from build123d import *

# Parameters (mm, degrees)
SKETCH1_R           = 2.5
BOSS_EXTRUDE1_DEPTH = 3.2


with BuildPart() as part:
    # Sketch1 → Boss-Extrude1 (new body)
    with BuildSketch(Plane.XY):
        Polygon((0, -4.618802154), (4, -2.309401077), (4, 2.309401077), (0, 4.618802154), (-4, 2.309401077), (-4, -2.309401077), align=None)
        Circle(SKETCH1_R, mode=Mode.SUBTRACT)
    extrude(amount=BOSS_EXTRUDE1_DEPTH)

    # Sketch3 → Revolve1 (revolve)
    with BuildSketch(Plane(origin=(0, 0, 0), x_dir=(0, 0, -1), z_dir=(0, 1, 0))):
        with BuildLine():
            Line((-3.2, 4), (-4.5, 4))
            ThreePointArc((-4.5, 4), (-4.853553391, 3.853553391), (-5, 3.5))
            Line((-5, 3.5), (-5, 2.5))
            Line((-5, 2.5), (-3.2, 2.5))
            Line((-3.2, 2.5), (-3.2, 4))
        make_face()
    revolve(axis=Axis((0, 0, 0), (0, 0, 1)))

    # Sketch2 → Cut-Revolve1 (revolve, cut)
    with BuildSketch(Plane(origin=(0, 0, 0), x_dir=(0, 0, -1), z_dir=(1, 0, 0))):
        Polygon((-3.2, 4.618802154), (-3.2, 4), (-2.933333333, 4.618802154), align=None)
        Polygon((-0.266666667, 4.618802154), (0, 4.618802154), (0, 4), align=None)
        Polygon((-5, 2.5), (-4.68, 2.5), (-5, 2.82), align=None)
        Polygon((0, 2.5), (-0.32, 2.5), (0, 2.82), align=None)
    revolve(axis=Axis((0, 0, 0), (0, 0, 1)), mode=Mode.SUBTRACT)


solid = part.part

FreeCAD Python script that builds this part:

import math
import FreeCAD as App
import Part
import Sketcher
from FreeCAD import Vector
Q = App.Units.Quantity

doc = App.newDocument("Part")
body = doc.addObject("PartDesign::Body", "Body")

sketch1 = body.newObject("Sketcher::SketchObject", "Sketch")
sketch1.AttachmentSupport = (doc.getObject("XY_Plane"), [""])
sketch1.MapMode = "FlatFace"
sketch1.addGeometry([
    Part.LineSegment(Vector(0, -4.618802, 0), Vector(4, -2.309401, 0)),
    Part.LineSegment(Vector(4, -2.309401, 0), Vector(4, 2.309401, 0)),
    Part.LineSegment(Vector(4, 2.309401, 0), Vector(0, 4.618802, 0)),
    Part.LineSegment(Vector(0, 4.618802, 0), Vector(-4, 2.309401, 0)),
    Part.LineSegment(Vector(-4, 2.309401, 0), Vector(-4, -2.309401, 0)),
    Part.LineSegment(Vector(-4, -2.309401, 0), Vector(0, -4.618802, 0)),
    Part.Circle(Vector(0, 0, 0), Vector(0, 0, 1), 2.5),
], False)
sketch1.addConstraint([
    Sketcher.Constraint("Coincident", 0, 2, 1, 1),
    Sketcher.Constraint("Coincident", 1, 2, 2, 1),
    Sketcher.Constraint("Coincident", 2, 2, 3, 1),
    Sketcher.Constraint("Coincident", 3, 2, 4, 1),
    Sketcher.Constraint("Coincident", 4, 2, 5, 1),
    Sketcher.Constraint("Coincident", 5, 2, 0, 1),
    Sketcher.Constraint("Vertical", 1),
    Sketcher.Constraint("Vertical", 4),
    Sketcher.Constraint("Coincident", 6, 3, -1, 1),
    Sketcher.Constraint("Symmetric", 0, 2, 3, 2, -1, 1),
    Sketcher.Constraint("Symmetric", 2, 2, 5, 2, -1, 1),
    Sketcher.Constraint("PointOnObject", 2, 2, -2),
    Sketcher.Constraint("Parallel", 2, 5),
    Sketcher.Constraint("Horizontal", 1, 2, 3, 2),
    Sketcher.Constraint("Diameter", 6, 5.0),
    Sketcher.Constraint("Angle", 0, Q("30 deg")),
    Sketcher.Constraint("DistanceX", -1, 1, 0, 2, 4.0),
    Sketcher.Constraint("DistanceY", 0, 2, -1, 1, 2.309401),
])
pad1 = body.newObject("PartDesign::Pad", "Pad")
pad1.Profile = sketch1
pad1.Length = 3.2

sketch2 = body.newObject("Sketcher::SketchObject", "Sketch001")
sketch2.AttachmentSupport = (doc.getObject("XZ_Plane"), [""])
sketch2.MapMode = "FlatFace"
sketch2.addGeometry([
    Part.LineSegment(Vector(-4, 3.2, 0), Vector(-4, 4.5, 0)),
    Part.ArcOfCircle(Part.Circle(Vector(-3.5, 4.5, 0), Vector(0, 0, 1), 0.5), math.radians(90), math.radians(180)),
    Part.LineSegment(Vector(-3.5, 5, 0), Vector(-2.5, 5, 0)),
    Part.LineSegment(Vector(-2.5, 5, 0), Vector(-2.5, 3.2, 0)),
    Part.LineSegment(Vector(-2.5, 3.2, 0), Vector(-4, 3.2, 0)),
], False)
sketch2.addConstraint([
    Sketcher.Constraint("Tangent", 0, 2, 1, 2),
    Sketcher.Constraint("Tangent", 1, 1, 2, 1),
    Sketcher.Constraint("Coincident", 2, 2, 3, 1),
    Sketcher.Constraint("Coincident", 3, 2, 4, 1),
    Sketcher.Constraint("Coincident", 4, 2, 0, 1),
    Sketcher.Constraint("Vertical", 0),
    Sketcher.Constraint("Horizontal", 2),
    Sketcher.Constraint("Vertical", 3),
    Sketcher.Constraint("Horizontal", 4),
    Sketcher.Constraint("Radius", 1, 0.5),
    Sketcher.Constraint("DistanceX", 2, 1, 2, 2, 1.0),
    Sketcher.Constraint("DistanceY", 0, 1, 0, 2, 1.3),
    Sketcher.Constraint("DistanceX", 0, 2, -1, 1, 4.0),
    Sketcher.Constraint("DistanceY", -1, 1, 1, 1, 5.0),
])
revolution = body.newObject("PartDesign::Revolution", "Revolution")
revolution.Profile = sketch2
revolution.ReferenceAxis = (sketch2, ["V_Axis"])
revolution.Angle = 360

sketch3 = body.newObject("Sketcher::SketchObject", "Sketch002")
sketch3.AttachmentSupport = (doc.getObject("YZ_Plane"), [""])
sketch3.MapMode = "FlatFace"
sketch3.addGeometry([
    Part.LineSegment(Vector(4.618802, 3.2, 0), Vector(4, 3.2, 0)),
    Part.LineSegment(Vector(4, 3.2, 0), Vector(4.618802, 2.933333, 0)),
    Part.LineSegment(Vector(4.618802, 2.933333, 0), Vector(4.618802, 3.2, 0)),
    Part.LineSegment(Vector(4.618802, 0, 0), Vector(4.618802, 0.266667, 0)),
    Part.LineSegment(Vector(4.618802, 0.266667, 0), Vector(4, 0, 0)),
    Part.LineSegment(Vector(4, 0, 0), Vector(4.618802, 0, 0)),
    Part.LineSegment(Vector(2.5, 5, 0), Vector(2.5, 4.68, 0)),
    Part.LineSegment(Vector(2.5, 4.68, 0), Vector(2.82, 5, 0)),
    Part.LineSegment(Vector(2.82, 5, 0), Vector(2.5, 5, 0)),
    Part.LineSegment(Vector(2.5, 0.32, 0), Vector(2.5, 0, 0)),
    Part.LineSegment(Vector(2.5, 0, 0), Vector(2.82, 0, 0)),
    Part.LineSegment(Vector(2.82, 0, 0), Vector(2.5, 0.32, 0)),
], False)
sketch3.addConstraint([
    Sketcher.Constraint("Coincident", 0, 2, 1, 1),
    Sketcher.Constraint("Coincident", 1, 2, 2, 1),
    Sketcher.Constraint("Coincident", 2, 2, 0, 1),
    Sketcher.Constraint("Coincident", 3, 2, 4, 1),
    Sketcher.Constraint("Coincident", 4, 2, 5, 1),
    Sketcher.Constraint("Coincident", 5, 2, 3, 1),
    Sketcher.Constraint("Coincident", 6, 2, 7, 1),
    Sketcher.Constraint("Coincident", 7, 2, 8, 1),
    Sketcher.Constraint("Coincident", 8, 2, 6, 1),
    Sketcher.Constraint("Coincident", 9, 2, 10, 1),
    Sketcher.Constraint("Coincident", 10, 2, 11, 1),
    Sketcher.Constraint("Coincident", 11, 2, 9, 1),
    Sketcher.Constraint("Horizontal", 0),
    Sketcher.Constraint("Vertical", 2),
    Sketcher.Constraint("Vertical", 3),
    Sketcher.Constraint("Horizontal", 5),
    Sketcher.Constraint("Vertical", 6),
    Sketcher.Constraint("Horizontal", 8),
    Sketcher.Constraint("Vertical", 9),
    Sketcher.Constraint("Horizontal", 10),
    Sketcher.Constraint("PointOnObject", 4, 2, -1),
    Sketcher.Constraint("PointOnObject", 9, 2, -1),
    Sketcher.Constraint("Perpendicular", 7, 11),
    Sketcher.Constraint("Vertical", 2, 2, 3, 2),
    Sketcher.Constraint("Vertical", 0, 2, 4, 2),
    Sketcher.Constraint("Vertical", 8, 2, 9, 2),
    Sketcher.Constraint("Vertical", 7, 2, 10, 2),
    Sketcher.Constraint("Equal", 2, 3),
    Sketcher.Constraint("Equal", 10, 6),
    Sketcher.Constraint("DistanceX", -1, 1, 0, 2, 4.0),
    Sketcher.Constraint("DistanceY", -1, 1, 7, 2, 5.0),
    Sketcher.Constraint("DistanceX", 8, 2, 8, 1, 0.32),
    Sketcher.Constraint("DistanceY", -1, 1, 0, 2, 3.2),
    Sketcher.Constraint("DistanceX", -1, 1, 6, 2, 2.5),
    Sketcher.Constraint("DistanceX", 0, 2, 0, 1, 0.618802),
    Sketcher.Constraint("DistanceY", 2, 1, 2, 2, 0.266667),
])
groove = body.newObject("PartDesign::Groove", "Groove")
groove.Profile = sketch3
groove.ReferenceAxis = (sketch3, ["V_Axis"])
groove.Angle = 360

doc.recompute()
